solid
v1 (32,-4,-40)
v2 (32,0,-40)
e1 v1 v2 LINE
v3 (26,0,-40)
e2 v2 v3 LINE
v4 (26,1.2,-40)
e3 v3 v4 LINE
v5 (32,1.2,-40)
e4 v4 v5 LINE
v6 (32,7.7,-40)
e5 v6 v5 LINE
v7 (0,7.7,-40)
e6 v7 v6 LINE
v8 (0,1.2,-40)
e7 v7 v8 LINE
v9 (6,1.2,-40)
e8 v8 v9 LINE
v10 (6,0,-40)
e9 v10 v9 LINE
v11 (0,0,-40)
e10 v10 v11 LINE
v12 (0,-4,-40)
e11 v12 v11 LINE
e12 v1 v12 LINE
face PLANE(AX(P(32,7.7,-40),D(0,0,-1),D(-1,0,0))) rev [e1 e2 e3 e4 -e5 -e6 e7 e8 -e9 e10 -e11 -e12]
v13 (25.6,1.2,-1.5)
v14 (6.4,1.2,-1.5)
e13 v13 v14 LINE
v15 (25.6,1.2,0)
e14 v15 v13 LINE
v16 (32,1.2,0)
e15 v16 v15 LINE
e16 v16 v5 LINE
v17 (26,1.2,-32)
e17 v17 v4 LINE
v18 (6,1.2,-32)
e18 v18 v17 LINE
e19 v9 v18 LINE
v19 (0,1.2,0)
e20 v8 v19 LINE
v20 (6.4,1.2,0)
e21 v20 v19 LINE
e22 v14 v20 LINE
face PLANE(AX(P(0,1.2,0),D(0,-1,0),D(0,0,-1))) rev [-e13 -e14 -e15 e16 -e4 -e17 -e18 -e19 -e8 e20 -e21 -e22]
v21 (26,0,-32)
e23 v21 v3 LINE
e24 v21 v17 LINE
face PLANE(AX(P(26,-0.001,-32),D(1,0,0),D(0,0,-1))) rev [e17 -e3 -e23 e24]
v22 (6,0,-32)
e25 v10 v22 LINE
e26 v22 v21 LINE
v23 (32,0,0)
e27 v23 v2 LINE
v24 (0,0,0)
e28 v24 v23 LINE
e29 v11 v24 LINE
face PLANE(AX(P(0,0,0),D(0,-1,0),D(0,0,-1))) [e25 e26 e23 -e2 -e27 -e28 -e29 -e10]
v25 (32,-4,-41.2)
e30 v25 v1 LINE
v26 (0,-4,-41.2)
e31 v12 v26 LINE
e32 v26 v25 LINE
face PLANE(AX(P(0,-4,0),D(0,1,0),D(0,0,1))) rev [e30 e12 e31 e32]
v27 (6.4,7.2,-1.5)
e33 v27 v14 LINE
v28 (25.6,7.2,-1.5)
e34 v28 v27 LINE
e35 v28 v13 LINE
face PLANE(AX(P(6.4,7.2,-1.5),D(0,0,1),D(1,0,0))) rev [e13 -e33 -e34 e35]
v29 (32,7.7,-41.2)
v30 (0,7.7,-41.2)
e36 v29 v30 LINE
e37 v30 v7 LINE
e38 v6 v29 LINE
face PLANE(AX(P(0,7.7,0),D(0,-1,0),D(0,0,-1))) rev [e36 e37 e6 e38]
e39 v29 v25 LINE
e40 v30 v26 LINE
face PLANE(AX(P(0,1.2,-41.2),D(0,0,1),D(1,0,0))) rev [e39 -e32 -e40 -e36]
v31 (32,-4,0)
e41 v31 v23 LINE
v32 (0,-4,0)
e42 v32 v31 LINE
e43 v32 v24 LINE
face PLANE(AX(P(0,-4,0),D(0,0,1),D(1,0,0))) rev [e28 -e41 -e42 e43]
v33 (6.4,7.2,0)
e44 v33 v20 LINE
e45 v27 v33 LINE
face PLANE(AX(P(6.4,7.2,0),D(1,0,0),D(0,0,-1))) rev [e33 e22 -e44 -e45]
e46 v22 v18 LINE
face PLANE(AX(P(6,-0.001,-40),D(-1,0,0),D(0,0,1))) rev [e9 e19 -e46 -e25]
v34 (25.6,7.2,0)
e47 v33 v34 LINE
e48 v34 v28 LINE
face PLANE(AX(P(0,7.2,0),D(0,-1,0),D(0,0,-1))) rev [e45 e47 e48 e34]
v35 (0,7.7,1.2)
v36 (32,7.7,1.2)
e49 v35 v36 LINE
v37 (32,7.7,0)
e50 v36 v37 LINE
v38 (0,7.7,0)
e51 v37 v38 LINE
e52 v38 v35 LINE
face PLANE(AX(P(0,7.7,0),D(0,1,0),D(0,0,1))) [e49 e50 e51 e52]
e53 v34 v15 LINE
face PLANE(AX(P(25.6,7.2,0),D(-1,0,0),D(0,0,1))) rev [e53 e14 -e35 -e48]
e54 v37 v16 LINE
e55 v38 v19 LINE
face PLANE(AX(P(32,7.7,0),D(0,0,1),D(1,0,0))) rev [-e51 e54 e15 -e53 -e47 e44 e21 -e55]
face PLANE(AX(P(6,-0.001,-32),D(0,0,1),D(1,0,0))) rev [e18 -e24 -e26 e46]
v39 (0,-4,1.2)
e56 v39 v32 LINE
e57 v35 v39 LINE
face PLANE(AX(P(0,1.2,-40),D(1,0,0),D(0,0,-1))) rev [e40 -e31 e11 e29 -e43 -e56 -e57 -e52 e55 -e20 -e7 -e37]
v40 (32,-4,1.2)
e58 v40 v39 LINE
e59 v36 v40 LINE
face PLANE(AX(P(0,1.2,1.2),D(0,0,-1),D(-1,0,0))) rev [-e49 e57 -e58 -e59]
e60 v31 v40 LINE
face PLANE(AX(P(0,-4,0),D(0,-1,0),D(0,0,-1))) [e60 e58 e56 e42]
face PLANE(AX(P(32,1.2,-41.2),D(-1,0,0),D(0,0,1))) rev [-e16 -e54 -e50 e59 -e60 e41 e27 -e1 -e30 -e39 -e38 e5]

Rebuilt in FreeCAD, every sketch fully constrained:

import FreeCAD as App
import Part
import Sketcher

V = App.Vector


def add_polygon(sketch, points):
    """Adds a closed chain of lines whose ends are joined by coincident constraints."""
    first, n = sketch.GeometryCount, len(points)
    for a, b in zip(points, points[1:] + points[:1]):
        sketch.addGeometry(Part.LineSegment(App.Vector(*a, 0), App.Vector(*b, 0)), False)
    for i in range(n):
        sketch.addConstraint(Sketcher.Constraint("Coincident", first + i, 2, first + (i + 1) % n, 1))

doc = App.newDocument("Part")
body = doc.addObject("PartDesign::Body", "Body")

# Sketch on XZ plane
sketch1 = doc.addObject("Sketcher::SketchObject", "Sketch")
body.addObject(sketch1)
sketch1.AttachmentSupport = (doc.XZ_Plane, [""])
sketch1.MapMode = "FlatFace"
add_polygon(sketch1, [(32, -41.2), (0, -41.2), (0, 1.2), (32, 1.2)])  # lines 0-3
sketch1.addConstraint(Sketcher.Constraint("Horizontal", 0))
sketch1.addConstraint(Sketcher.Constraint("Vertical", 1))
sketch1.addConstraint(Sketcher.Constraint("Horizontal", 2))
sketch1.addConstraint(Sketcher.Constraint("Vertical", 3))
sketch1.addConstraint(Sketcher.Constraint("PointOnObject", 0, 2, -2))
sketch1.addConstraint(Sketcher.Constraint("DistanceX", 0, 2, 0, 1, 32.0))
sketch1.addConstraint(Sketcher.Constraint("DistanceY", 1, 1, 1, 2, 42.4))
sketch1.addConstraint(Sketcher.Constraint("DistanceY", 0, 2, -1, 1, 41.2))
pad1 = doc.addObject("PartDesign::Pad", "Pad")
body.addObject(pad1)
pad1.Profile = sketch1
pad1.Length = 1.2
pad1.Reversed = True

# Sketch on XZ plane
sketch2 = doc.addObject("Sketcher::SketchObject", "Sketch001")
body.addObject(sketch2)
sketch2.AttachmentSupport = (doc.XZ_Plane, [""])
sketch2.MapMode = "FlatFace"
sketch2.AttachmentOffset = App.Placement(V(0, 0, -1.2), App.Rotation())
add_polygon(sketch2, [(0, 0), (0, 1.2), (32, 1.2), (32, 0)])  # lines 0-3
add_polygon(sketch2, [(0, -41.2), (0, -40), (32, -40), (32, -41.2)])  # lines 4-7
sketch2.addConstraint(Sketcher.Constraint("Vertical", 0))
sketch2.addConstraint(Sketcher.Constraint("Horizontal", 1))
sketch2.addConstraint(Sketcher.Constraint("Vertical", 2))
sketch2.addConstraint(Sketcher.Constraint("Horizontal", 3))
sketch2.addConstraint(Sketcher.Constraint("Vertical", 4))
sketch2.addConstraint(Sketcher.Constraint("Horizontal", 5))
sketch2.addConstraint(Sketcher.Constraint("Vertical", 6))
sketch2.addConstraint(Sketcher.Constraint("Horizontal", 7))
sketch2.addConstraint(Sketcher.Constraint("Coincident", 3, 2, -1, 1))
sketch2.addConstraint(Sketcher.Constraint("PointOnObject", 4, 2, -2))
sketch2.addConstraint(Sketcher.Constraint("Vertical", 2, 2, 5, 2))
sketch2.addConstraint(Sketcher.Constraint("Equal", 2, 4))
sketch2.addConstraint(Sketcher.Constraint("DistanceX", 1, 1, 1, 2, 32.0))
sketch2.addConstraint(Sketcher.Constraint("DistanceY", 0, 1, 0, 2, 1.2))
sketch2.addConstraint(Sketcher.Constraint("DistanceY", 4, 2, -1, 1, 40.0))
pad2 = doc.addObject("PartDesign::Pad", "Pad001")
body.addObject(pad2)
pad2.Profile = sketch2
pad2.Length = 6.5
pad2.Reversed = True

# Sketch on XZ plane
sketch3 = doc.addObject("Sketcher::SketchObject", "Sketch002")
body.addObject(sketch3)
sketch3.AttachmentSupport = (doc.XZ_Plane, [""])
sketch3.MapMode = "FlatFace"
sketch3.AttachmentOffset = App.Placement(V(0, 0, -1.2), App.Rotation())
add_polygon(sketch3, [(25.6, 0), (25.6, -1.5), (6.4, -1.5), (6.4, 0)])  # lines 0-3
sketch3.addConstraint(Sketcher.Constraint("Vertical", 0))
sketch3.addConstraint(Sketcher.Constraint("Horizontal", 1))
sketch3.addConstraint(Sketcher.Constraint("Vertical", 2))
sketch3.addConstraint(Sketcher.Constraint("Horizontal", 3))
sketch3.addConstraint(Sketcher.Constraint("PointOnObject", 2, 2, -1))
sketch3.addConstraint(Sketcher.Constraint("DistanceX", 1, 2, 1, 1, 19.2))
sketch3.addConstraint(Sketcher.Constraint("DistanceY", 0, 2, 0, 1, 1.5))
sketch3.addConstraint(Sketcher.Constraint("DistanceX", -1, 1, 0, 2, 25.6))
pad3 = doc.addObject("PartDesign::Pad", "Pad002")
body.addObject(pad3)
pad3.Profile = sketch3
pad3.Length = 6
pad3.Reversed = True

# Sketch on XZ plane
sketch4 = doc.addObject("Sketcher::SketchObject", "Sketch003")
body.addObject(sketch4)
sketch4.AttachmentSupport = (doc.XZ_Plane, [""])
sketch4.MapMode = "FlatFace"
sketch4.AttachmentOffset = App.Placement(V(0, 0, -1.2), App.Rotation())
add_polygon(sketch4, [(26, -40), (6, -40), (6, -32), (26, -32)])  # lines 0-3
sketch4.addConstraint(Sketcher.Constraint("Horizontal", 0))
sketch4.addConstraint(Sketcher.Constraint("Vertical", 1))
sketch4.addConstraint(Sketcher.Constraint("Horizontal", 2))
sketch4.addConstraint(Sketcher.Constraint("Vertical", 3))
sketch4.addConstraint(Sketcher.Constraint("DistanceX", 0, 2, 0, 1, 20.0))
sketch4.addConstraint(Sketcher.Constraint("DistanceY", 1, 1, 1, 2, 8.0))
sketch4.addConstraint(Sketcher.Constraint("DistanceX", -1, 1, 0, 2, 6.0))
sketch4.addConstraint(Sketcher.Constraint("DistanceY", 0, 2, -1, 1, 40.0))
pocket1 = doc.addObject("PartDesign::Pocket", "Pocket")
body.addObject(pocket1)
pocket1.Profile = sketch4
pocket1.Type = "UpToFirst"
pocket1.Reversed = True

# Sketch on XZ plane
sketch5 = doc.addObject("Sketcher::SketchObject", "Sketch004")
body.addObject(sketch5)
sketch5.AttachmentSupport = (doc.XZ_Plane, [""])
sketch5.MapMode = "FlatFace"
add_polygon(sketch5, [(0, 1.2), (0, 0), (32, 0), (32, 1.2)])  # lines 0-3
add_polygon(sketch5, [(0, -40), (0, -41.2), (32, -41.2), (32, -40)])  # lines 4-7
sketch5.addConstraint(Sketcher.Constraint("Vertical", 0))
sketch5.addConstraint(Sketcher.Constraint("Horizontal", 1))
sketch5.addConstraint(Sketcher.Constraint("Vertical", 2))
sketch5.addConstraint(Sketcher.Constraint("Horizontal", 3))
sketch5.addConstraint(Sketcher.Constraint("Vertical", 4))
sketch5.addConstraint(Sketcher.Constraint("Horizontal", 5))
sketch5.addConstraint(Sketcher.Constraint("Vertical", 6))
sketch5.addConstraint(Sketcher.Constraint("Horizontal", 7))
sketch5.addConstraint(Sketcher.Constraint("Coincident", 0, 2, -1, 1))
sketch5.addConstraint(Sketcher.Constraint("PointOnObject", 4, 2, -2))
sketch5.addConstraint(Sketcher.Constraint("Vertical", 2, 2, 5, 2))
sketch5.addConstraint(Sketcher.Constraint("Equal", 2, 4))
sketch5.addConstraint(Sketcher.Constraint("DistanceX", 1, 1, 1, 2, 32.0))
sketch5.addConstraint(Sketcher.Constraint("DistanceY", 0, 2, 0, 1, 1.2))
sketch5.addConstraint(Sketcher.Constraint("DistanceY", 6, 2, -1, 1, 40.0))
pad4 = doc.addObject("PartDesign::Pad", "Pad003")
body.addObject(pad4)
pad4.Profile = sketch5
pad4.Length = 4

doc.recompute()
